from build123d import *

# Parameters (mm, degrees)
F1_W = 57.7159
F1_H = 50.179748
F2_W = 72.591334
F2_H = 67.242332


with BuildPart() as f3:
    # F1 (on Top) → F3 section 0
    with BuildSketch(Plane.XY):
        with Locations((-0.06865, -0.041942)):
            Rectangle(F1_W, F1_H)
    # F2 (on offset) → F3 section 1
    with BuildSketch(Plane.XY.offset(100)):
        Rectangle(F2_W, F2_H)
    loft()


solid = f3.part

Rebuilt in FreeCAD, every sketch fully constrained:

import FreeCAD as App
import Part
import Sketcher


def add_polygon(sketch, points):
    """Adds a closed chain of lines whose ends are joined by coincident constraints."""
    first, n = sketch.GeometryCount, len(points)
    for a, b in zip(points, points[1:] + points[:1]):
        sketch.addGeometry(Part.LineSegment(App.Vector(*a, 0), App.Vector(*b, 0)), False)
    for i in range(n):
        sketch.addConstraint(Sketcher.Constraint("Coincident", first + i, 2, first + (i + 1) % n, 1))

doc = App.newDocument("Part")
body = doc.addObject("PartDesign::Body", "Body")

sketch1 = doc.addObject("Sketcher::SketchObject", "Sketch")
body.addObject(sketch1)
sketch1.AttachmentSupport = (doc.XY_Plane, [""])
sketch1.MapMode = "FlatFace"
add_polygon(sketch1, [(-28.9266, 25.047932), (-28.9266, -25.131816), (28.7893, -25.131816), (28.7893, 25.047932)])
sketch1.addConstraint(Sketcher.Constraint("Vertical", 0))
sketch1.addConstraint(Sketcher.Constraint("Horizontal", 1))
sketch1.addConstraint(Sketcher.Constraint("Vertical", 2))
sketch1.addConstraint(Sketcher.Constraint("Horizontal", 3))
sketch1.addConstraint(Sketcher.Constraint("DistanceX", 1, 1, 1, 2, 57.7159))
sketch1.addConstraint(Sketcher.Constraint("DistanceY", 0, 2, 0, 1, 50.179748))
sketch1.addConstraint(Sketcher.Constraint("DistanceX", 0, 2, -1, 1, 28.9266))
sketch1.addConstraint(Sketcher.Constraint("DistanceY", -1, 1, 2, 2, 25.047932))

sketch2 = doc.addObject("Sketcher::SketchObject", "Sketch001")
body.addObject(sketch2)
sketch2.AttachmentSupport = (doc.XY_Plane, [""])
sketch2.MapMode = "FlatFace"
sketch2.AttachmentOffset = App.Placement(App.Vector(0, 0, 100), App.Rotation())
add_polygon(sketch2, [(-36.295667, 33.621166), (-36.295667, -33.621166), (36.295667, -33.621166), (36.295667, 33.621166)])
sketch2.addConstraint(Sketcher.Constraint("Vertical", 0))
sketch2.addConstraint(Sketcher.Constraint("Horizontal", 1))
sketch2.addConstraint(Sketcher.Constraint("Vertical", 2))
sketch2.addConstraint(Sketcher.Constraint("Horizontal", 3))
sketch2.addConstraint(Sketcher.Constraint("Symmetric", 0, 2, 2, 2, -1, 1))
sketch2.addConstraint(Sketcher.Constraint("DistanceX", 1, 1, 1, 2, 72.591334))
sketch2.addConstraint(Sketcher.Constraint("DistanceY", 0, 2, 0, 1, 67.242332))

additiveloft = doc.addObject("PartDesign::AdditiveLoft", "AdditiveLoft")
body.addObject(additiveloft)
additiveloft.Profile = sketch1
additiveloft.Sections = [sketch2]

doc.recompute()
